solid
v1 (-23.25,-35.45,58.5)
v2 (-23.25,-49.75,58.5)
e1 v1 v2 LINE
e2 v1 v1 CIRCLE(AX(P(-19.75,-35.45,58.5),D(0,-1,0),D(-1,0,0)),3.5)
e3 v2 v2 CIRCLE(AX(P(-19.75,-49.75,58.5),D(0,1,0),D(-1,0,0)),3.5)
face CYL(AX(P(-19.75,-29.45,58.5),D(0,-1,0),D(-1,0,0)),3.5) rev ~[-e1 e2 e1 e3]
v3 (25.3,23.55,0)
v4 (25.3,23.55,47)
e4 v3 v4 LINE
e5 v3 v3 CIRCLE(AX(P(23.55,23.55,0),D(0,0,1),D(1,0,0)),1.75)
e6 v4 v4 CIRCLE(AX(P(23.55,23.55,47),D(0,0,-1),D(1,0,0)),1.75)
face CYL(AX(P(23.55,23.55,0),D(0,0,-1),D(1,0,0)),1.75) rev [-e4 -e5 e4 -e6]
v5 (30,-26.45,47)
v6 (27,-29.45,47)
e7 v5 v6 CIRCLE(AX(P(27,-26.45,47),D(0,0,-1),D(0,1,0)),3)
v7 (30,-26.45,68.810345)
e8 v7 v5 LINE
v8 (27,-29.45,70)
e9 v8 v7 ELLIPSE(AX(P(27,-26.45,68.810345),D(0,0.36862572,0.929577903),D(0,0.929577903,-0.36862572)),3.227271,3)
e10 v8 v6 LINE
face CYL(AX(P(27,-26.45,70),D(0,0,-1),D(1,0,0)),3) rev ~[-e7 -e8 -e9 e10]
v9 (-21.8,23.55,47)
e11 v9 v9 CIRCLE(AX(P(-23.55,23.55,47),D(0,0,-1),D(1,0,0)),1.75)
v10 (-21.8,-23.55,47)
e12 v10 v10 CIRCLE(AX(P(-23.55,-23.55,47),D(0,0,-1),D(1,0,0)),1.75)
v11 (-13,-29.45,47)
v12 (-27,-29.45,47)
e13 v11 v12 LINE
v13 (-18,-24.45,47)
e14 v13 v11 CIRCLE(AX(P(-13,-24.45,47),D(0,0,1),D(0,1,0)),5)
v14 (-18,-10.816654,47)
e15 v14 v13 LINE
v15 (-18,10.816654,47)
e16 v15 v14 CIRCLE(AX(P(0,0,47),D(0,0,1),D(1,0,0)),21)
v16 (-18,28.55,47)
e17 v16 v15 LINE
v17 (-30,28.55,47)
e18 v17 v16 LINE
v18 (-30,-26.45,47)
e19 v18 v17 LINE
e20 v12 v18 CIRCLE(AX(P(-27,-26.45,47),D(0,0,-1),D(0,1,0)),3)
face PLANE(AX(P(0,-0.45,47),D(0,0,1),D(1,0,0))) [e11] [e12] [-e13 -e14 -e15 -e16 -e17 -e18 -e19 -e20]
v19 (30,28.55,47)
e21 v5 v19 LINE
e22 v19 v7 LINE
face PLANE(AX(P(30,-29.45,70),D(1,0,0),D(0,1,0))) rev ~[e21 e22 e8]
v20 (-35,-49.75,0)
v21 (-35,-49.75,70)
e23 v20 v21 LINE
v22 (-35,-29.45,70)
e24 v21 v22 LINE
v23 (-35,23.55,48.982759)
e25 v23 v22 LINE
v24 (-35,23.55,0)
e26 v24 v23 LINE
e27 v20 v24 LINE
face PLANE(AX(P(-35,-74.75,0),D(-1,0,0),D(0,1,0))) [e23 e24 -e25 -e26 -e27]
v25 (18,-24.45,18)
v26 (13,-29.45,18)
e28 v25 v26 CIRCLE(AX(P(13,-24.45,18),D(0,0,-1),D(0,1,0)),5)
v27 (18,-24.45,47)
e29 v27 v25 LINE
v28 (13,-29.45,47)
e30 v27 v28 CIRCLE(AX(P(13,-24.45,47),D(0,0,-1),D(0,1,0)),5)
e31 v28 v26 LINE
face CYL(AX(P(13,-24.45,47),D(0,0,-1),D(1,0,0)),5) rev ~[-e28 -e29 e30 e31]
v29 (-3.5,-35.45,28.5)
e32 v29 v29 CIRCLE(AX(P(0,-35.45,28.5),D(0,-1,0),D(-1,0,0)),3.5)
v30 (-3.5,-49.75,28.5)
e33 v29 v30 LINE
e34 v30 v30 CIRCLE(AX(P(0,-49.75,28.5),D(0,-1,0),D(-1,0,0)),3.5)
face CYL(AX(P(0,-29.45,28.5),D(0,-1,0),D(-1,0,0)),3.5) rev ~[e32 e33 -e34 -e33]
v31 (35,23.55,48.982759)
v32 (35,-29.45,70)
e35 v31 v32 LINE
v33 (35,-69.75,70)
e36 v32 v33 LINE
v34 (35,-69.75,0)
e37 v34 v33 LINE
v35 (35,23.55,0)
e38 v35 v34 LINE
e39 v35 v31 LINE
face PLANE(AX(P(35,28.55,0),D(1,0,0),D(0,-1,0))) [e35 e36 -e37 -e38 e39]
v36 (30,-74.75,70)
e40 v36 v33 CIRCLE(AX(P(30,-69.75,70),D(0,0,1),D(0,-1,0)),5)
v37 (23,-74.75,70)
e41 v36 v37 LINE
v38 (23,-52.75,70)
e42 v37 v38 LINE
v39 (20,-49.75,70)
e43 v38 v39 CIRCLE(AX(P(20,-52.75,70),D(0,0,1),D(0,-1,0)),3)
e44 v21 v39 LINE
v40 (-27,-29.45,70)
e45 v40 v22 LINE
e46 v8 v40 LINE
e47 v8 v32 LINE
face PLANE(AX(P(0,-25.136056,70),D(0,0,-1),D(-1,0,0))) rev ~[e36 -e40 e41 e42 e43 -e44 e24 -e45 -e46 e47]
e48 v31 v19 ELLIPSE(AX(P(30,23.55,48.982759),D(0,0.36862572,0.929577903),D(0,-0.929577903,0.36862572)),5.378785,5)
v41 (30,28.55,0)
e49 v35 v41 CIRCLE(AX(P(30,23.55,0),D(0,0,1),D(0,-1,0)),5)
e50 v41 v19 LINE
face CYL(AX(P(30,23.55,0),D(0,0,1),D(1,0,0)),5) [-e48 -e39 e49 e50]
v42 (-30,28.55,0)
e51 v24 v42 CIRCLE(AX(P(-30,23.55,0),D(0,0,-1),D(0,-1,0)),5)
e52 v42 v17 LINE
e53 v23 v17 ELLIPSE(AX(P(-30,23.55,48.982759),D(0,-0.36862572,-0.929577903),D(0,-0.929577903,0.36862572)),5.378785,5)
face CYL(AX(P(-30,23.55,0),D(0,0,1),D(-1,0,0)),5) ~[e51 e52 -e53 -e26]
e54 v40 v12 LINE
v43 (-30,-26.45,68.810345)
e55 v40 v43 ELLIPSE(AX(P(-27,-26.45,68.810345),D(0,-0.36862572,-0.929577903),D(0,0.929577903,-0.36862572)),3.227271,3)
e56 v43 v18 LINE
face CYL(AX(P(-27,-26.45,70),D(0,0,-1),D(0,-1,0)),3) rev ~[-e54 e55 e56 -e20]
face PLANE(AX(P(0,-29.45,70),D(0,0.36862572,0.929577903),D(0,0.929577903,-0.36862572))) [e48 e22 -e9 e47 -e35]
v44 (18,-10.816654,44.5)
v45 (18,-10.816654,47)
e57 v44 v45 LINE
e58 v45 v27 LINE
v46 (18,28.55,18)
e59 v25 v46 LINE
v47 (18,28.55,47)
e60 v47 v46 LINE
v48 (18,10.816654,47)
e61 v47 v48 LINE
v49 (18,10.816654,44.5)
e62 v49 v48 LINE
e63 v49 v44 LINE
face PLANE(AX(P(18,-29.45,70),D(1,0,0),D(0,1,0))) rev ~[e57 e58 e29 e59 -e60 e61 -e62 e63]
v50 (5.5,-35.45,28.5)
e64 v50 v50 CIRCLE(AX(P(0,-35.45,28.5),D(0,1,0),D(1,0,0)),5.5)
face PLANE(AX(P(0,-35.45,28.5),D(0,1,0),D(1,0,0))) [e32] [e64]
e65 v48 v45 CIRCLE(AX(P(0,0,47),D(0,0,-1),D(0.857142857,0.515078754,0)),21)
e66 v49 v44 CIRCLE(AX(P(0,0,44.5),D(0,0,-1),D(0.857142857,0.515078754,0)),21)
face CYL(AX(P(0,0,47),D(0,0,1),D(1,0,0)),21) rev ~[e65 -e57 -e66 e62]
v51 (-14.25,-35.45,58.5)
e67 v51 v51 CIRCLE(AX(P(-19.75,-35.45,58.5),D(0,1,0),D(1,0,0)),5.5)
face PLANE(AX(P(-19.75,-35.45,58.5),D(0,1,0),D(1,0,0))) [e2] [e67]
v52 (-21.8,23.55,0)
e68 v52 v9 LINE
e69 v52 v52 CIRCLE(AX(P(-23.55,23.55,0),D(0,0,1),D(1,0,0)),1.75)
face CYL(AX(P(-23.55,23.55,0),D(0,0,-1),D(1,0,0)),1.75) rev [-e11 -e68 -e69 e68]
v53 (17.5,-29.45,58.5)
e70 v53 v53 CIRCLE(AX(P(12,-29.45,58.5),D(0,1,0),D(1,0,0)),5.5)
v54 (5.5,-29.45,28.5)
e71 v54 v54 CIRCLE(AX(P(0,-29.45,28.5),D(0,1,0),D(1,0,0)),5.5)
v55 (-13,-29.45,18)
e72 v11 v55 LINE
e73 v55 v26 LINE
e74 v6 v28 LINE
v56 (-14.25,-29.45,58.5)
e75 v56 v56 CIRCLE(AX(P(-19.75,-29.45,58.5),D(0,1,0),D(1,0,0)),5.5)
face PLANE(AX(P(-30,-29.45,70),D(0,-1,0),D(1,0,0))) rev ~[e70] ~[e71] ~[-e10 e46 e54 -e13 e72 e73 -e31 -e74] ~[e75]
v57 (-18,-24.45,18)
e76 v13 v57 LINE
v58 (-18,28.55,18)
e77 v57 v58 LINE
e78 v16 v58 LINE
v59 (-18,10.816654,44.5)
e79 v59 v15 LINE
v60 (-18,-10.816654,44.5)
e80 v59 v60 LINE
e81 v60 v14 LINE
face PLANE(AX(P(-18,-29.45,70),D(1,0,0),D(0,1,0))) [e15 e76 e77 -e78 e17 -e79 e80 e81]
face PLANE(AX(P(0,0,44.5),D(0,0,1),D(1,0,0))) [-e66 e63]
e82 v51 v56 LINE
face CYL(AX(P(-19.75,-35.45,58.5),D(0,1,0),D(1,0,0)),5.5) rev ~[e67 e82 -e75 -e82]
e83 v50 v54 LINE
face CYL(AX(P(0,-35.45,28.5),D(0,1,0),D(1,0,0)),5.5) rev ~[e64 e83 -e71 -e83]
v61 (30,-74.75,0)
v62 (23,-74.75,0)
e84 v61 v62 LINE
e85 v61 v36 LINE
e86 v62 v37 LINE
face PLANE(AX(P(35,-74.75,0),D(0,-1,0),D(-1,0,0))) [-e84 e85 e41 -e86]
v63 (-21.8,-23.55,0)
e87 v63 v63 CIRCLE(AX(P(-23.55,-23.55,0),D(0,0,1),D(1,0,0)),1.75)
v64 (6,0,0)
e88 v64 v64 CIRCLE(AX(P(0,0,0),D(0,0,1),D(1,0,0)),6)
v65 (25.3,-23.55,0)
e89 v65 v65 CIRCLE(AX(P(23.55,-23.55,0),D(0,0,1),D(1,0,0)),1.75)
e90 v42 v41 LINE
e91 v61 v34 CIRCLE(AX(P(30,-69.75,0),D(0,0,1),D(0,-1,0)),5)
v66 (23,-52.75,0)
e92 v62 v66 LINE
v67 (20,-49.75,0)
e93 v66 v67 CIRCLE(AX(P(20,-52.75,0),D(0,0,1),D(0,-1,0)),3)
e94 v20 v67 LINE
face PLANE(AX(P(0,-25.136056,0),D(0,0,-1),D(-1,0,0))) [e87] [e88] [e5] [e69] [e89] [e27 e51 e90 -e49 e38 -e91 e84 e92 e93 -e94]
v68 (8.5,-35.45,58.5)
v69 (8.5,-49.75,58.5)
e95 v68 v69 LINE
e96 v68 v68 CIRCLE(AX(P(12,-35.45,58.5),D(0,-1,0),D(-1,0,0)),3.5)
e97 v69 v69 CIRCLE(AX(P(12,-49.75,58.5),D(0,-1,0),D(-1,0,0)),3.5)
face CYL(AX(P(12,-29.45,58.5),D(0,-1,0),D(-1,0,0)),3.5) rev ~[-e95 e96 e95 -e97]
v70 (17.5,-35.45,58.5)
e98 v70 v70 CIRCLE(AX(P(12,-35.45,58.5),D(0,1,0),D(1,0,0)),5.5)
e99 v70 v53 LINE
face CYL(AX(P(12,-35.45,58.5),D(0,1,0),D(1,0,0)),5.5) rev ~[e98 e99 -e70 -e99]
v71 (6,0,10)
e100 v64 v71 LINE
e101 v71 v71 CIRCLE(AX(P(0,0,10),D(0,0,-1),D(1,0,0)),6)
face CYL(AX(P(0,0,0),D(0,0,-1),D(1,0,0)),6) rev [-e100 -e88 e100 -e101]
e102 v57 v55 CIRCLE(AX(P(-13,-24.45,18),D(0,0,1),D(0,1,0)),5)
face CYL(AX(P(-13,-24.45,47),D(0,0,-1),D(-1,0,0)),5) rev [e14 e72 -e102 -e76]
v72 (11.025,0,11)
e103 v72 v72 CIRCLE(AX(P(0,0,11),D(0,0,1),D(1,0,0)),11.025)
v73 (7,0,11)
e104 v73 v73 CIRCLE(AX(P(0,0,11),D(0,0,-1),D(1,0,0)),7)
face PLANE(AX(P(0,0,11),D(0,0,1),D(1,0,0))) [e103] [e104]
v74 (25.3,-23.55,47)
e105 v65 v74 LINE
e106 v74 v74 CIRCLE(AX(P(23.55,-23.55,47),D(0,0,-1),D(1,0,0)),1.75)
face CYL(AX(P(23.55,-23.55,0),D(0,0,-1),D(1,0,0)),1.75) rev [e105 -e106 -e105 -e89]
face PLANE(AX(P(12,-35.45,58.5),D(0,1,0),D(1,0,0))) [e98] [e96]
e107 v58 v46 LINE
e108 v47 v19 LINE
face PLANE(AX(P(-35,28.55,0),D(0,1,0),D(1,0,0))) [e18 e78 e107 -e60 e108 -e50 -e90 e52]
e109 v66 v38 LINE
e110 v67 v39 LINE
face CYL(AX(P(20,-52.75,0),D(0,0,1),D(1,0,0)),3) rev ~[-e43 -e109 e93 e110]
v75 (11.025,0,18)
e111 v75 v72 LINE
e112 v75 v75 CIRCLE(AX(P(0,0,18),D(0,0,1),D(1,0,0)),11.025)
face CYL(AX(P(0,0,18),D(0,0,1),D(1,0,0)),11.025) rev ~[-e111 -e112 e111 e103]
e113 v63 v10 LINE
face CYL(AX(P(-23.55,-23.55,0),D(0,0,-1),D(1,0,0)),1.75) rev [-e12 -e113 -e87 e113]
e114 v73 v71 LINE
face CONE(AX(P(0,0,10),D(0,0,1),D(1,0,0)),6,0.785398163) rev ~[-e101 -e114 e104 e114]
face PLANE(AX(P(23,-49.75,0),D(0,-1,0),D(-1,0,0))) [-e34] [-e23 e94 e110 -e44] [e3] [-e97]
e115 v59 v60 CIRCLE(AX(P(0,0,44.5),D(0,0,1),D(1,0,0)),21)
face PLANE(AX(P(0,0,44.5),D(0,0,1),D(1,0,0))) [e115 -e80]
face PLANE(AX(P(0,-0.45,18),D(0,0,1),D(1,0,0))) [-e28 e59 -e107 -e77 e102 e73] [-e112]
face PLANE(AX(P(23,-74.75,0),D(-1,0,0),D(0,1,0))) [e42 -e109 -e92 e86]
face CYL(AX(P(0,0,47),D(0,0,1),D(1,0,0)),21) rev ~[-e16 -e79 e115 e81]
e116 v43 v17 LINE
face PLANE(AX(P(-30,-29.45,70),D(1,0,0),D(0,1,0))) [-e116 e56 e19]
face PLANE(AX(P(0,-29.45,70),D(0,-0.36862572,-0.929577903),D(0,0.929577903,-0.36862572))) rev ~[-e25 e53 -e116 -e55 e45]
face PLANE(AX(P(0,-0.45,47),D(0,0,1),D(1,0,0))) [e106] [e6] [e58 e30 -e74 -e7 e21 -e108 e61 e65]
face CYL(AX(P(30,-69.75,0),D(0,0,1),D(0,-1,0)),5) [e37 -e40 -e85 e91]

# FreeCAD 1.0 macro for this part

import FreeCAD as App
import Part
import Sketcher


def edges_at(feature, points):
    """Names of the edges that pass closest to the given points."""
    edges = feature.Shape.Edges
    near = lambda p: min(range(len(edges)), key=lambda i: edges[i].distToShape(Part.Vertex(*p))[0])
    return sorted({f"Edge{near(p) + 1}" for p in points})

doc = App.newDocument("Part")
body = doc.addObject("PartDesign::Body", "Body")

sketch1 = body.newObject("Sketcher::SketchObject", "Sketch")
sketch1.AttachmentSupport = (doc.getObject("XY_Plane"), [""])
sketch1.MapMode = "FlatFace"
sketch1.addGeometry(Part.LineSegment(App.Vector(-35, 28.55, 0), App.Vector(-35, -74.75, 0)), False)
sketch1.addGeometry(Part.LineSegment(App.Vector(-35, -74.75, 0), App.Vector(-23, -74.75, 0)), False)
sketch1.addGeometry(Part.LineSegment(App.Vector(-23, -74.75, 0), App.Vector(-23, -49.75, 0)), False)
sketch1.addGeometry(Part.LineSegment(App.Vector(-23, -49.75, 0), App.Vector(23, -49.75, 0)), False)
sketch1.addGeometry(Part.LineSegment(App.Vector(23, -49.75, 0), App.Vector(23, -74.75, 0)), False)
sketch1.addGeometry(Part.LineSegment(App.Vector(23, -74.75, 0), App.Vector(35, -74.75, 0)), False)
sketch1.addGeometry(Part.LineSegment(App.Vector(35, -74.75, 0), App.Vector(35, 28.55, 0)), False)
sketch1.addGeometry(Part.LineSegment(App.Vector(35, 28.55, 0), App.Vector(-35, 28.55, 0)), False)
sketch1.addGeometry(Part.Circle(App.Vector(23.55, -23.55, 0), App.Vector(0, 0, 1), 1.75), False)
sketch1.addGeometry(Part.Circle(App.Vector(-23.55, -23.55, 0), App.Vector(0, 0, 1), 1.75), False)
sketch1.addGeometry(Part.Circle(App.Vector(23.55, 23.55, 0), App.Vector(0, 0, 1), 1.75), False)
sketch1.addGeometry(Part.Circle(App.Vector(0, 0, 0), App.Vector(0, 0, 1), 6), False)
sketch1.addGeometry(Part.Circle(App.Vector(-23.55, 23.55, 0), App.Vector(0, 0, 1), 1.75), False)
sketch1.addConstraint(Sketcher.Constraint("Coincident", 0, 2, 1, 1))
sketch1.addConstraint(Sketcher.Constraint("Coincident", 1, 2, 2, 1))
sketch1.addConstraint(Sketcher.Constraint("Coincident", 2, 2, 3, 1))
sketch1.addConstraint(Sketcher.Constraint("Coincident", 3, 2, 4, 1))
sketch1.addConstraint(Sketcher.Constraint("Coincident", 4, 2, 5, 1))
sketch1.addConstraint(Sketcher.Constraint("Coincident", 5, 2, 6, 1))
sketch1.addConstraint(Sketcher.Constraint("Coincident", 6, 2, 7, 1))
sketch1.addConstraint(Sketcher.Constraint("Coincident", 7, 2, 0, 1))
sketch1.addConstraint(Sketcher.Constraint("Vertical", 0))
sketch1.addConstraint(Sketcher.Constraint("Horizontal", 1))
sketch1.addConstraint(Sketcher.Constraint("Vertical", 2))
sketch1.addConstraint(Sketcher.Constraint("Horizontal", 3))
sketch1.addConstraint(Sketcher.Constraint("Vertical", 4))
sketch1.addConstraint(Sketcher.Constraint("Horizontal", 5))
sketch1.addConstraint(Sketcher.Constraint("Vertical", 6))
sketch1.addConstraint(Sketcher.Constraint("Horizontal", 7))
sketch1.addConstraint(Sketcher.Constraint("Coincident", 11, 3, -1, 1))
sketch1.addConstraint(Sketcher.Constraint("Equal", 8, 9))
sketch1.addConstraint(Sketcher.Constraint("Equal", 9, 10))
sketch1.addConstraint(Sketcher.Constraint("Equal", 10, 12))
sketch1.addConstraint(Sketcher.Constraint("Symmetric", 9, 3, 10, 3, -1, 1))
sketch1.addConstraint(Sketcher.Constraint("Symmetric", 8, 3, 12, 3, -1, 1))
sketch1.addConstraint(Sketcher.Constraint("Symmetric", 8, 3, 9, 3, -2))
sketch1.addConstraint(Sketcher.Constraint("Symmetric", 1, 2, 4, 2, -2))
sketch1.addConstraint(Sketcher.Constraint("Equal", 1, 5))
sketch1.addConstraint(Sketcher.Constraint("Diameter", 11, 12.0))
sketch1.addConstraint(Sketcher.Constraint("Diameter", 8, 3.5))
sketch1.addConstraint(Sketcher.Constraint("DistanceX", 1, 1, 1, 2, 12.0))
sketch1.addConstraint(Sketcher.Constraint("DistanceX", 3, 1, 3, 2, 46.0))
sketch1.addConstraint(Sketcher.Constraint("DistanceY", 2, 1, 2, 2, 25.0))
sketch1.addConstraint(Sketcher.Constraint("DistanceY", 0, 2, 0, 1, 103.3))
sketch1.addConstraint(Sketcher.Constraint("DistanceY", 10, 3, 6, 2, 5.0))
sketch1.addConstraint(Sketcher.Constraint("DistanceX", 9, 3, 8, 3, 47.1))
sketch1.addConstraint(Sketcher.Constraint("DistanceY", 8, 3, 10, 3, 47.1))
pad1 = body.newObject("PartDesign::Pad", "Pad")
pad1.Profile = sketch1
pad1.Length = 70

sketch2 = body.newObject("Sketcher::SketchObject", "Sketch001")
sketch2.AttachmentSupport = (doc.getObject("XY_Plane"), [""])
sketch2.MapMode = "FlatFace"
sketch2.AttachmentOffset = App.Placement(App.Vector(0, 0, 70), App.Rotation())
sketch2.addGeometry(Part.LineSegment(App.Vector(-18, 28.55, 0), App.Vector(-18, -29.45, 0)), False)
sketch2.addGeometry(Part.LineSegment(App.Vector(-18, -29.45, 0), App.Vector(18, -29.45, 0)), False)
sketch2.addGeometry(Part.LineSegment(App.Vector(18, -29.45, 0), App.Vector(18, 28.55, 0)), False)
sketch2.addGeometry(Part.LineSegment(App.Vector(18, 28.55, 0), App.Vector(-18, 28.55, 0)), False)
sketch2.addConstraint(Sketcher.Constraint("Coincident", 0, 2, 1, 1))
sketch2.addConstraint(Sketcher.Constraint("Coincident", 1, 2, 2, 1))
sketch2.addConstraint(Sketcher.Constraint("Coincident", 2, 2, 3, 1))
sketch2.addConstraint(Sketcher.Constraint("Coincident", 3, 2, 0, 1))
sketch2.addConstraint(Sketcher.Constraint("Vertical", 0))
sketch2.addConstraint(Sketcher.Constraint("Horizontal", 1))
sketch2.addConstraint(Sketcher.Constraint("Vertical", 2))
sketch2.addConstraint(Sketcher.Constraint("Horizontal", 3))
sketch2.addConstraint(Sketcher.Constraint("DistanceX", 1, 1, 1, 2, 36.0))
sketch2.addConstraint(Sketcher.Constraint("DistanceY", 0, 2, 0, 1, 58.0))
sketch2.addConstraint(Sketcher.Constraint("DistanceX", 0, 2, -1, 1, 18.0))
sketch2.addConstraint(Sketcher.Constraint("DistanceY", 0, 2, -1, 1, 29.45))
pocket1 = body.newObject("PartDesign::Pocket", "Pocket")
pocket1.Profile = sketch2
pocket1.Length = 52

sketch3 = body.newObject("Sketcher::SketchObject", "Sketch002")
sketch3.AttachmentSupport = (doc.getObject("XY_Plane"), [""])
sketch3.MapMode = "FlatFace"
sketch3.AttachmentOffset = App.Placement(App.Vector(0, 0, 70), App.Rotation())
sketch3.addGeometry(Part.LineSegment(App.Vector(-30, 28.55, 0), App.Vector(-30, -29.45, 0)), False)
sketch3.addGeometry(Part.LineSegment(App.Vector(-30, -29.45, 0), App.Vector(30, -29.45, 0)), False)
sketch3.addGeometry(Part.LineSegment(App.Vector(30, -29.45, 0), App.Vector(30, 28.55, 0)), False)
sketch3.addGeometry(Part.LineSegment(App.Vector(30, 28.55, 0), App.Vector(-30, 28.55, 0)), False)
sketch3.addConstraint(Sketcher.Constraint("Coincident", 0, 2, 1, 1))
sketch3.addConstraint(Sketcher.Constraint("Coincident", 1, 2, 2, 1))
sketch3.addConstraint(Sketcher.Constraint("Coincident", 2, 2, 3, 1))
sketch3.addConstraint(Sketcher.Constraint("Coincident", 3, 2, 0, 1))
sketch3.addConstraint(Sketcher.Constraint("Vertical", 0))
sketch3.addConstraint(Sketcher.Constraint("Horizontal", 1))
sketch3.addConstraint(Sketcher.Constraint("Vertical", 2))
sketch3.addConstraint(Sketcher.Constraint("Horizontal", 3))
sketch3.addConstraint(Sketcher.Constraint("DistanceX", 1, 1, 1, 2, 60.0))
sketch3.addConstraint(Sketcher.Constraint("DistanceY", 0, 2, 0, 1, 58.0))
sketch3.addConstraint(Sketcher.Constraint("DistanceX", 0, 2, -1, 1, 30.0))
sketch3.addConstraint(Sketcher.Constraint("DistanceY", 0, 2, -1, 1, 29.45))
pocket2 = body.newObject("PartDesign::Pocket", "Pocket001")
pocket2.Profile = sketch3
pocket2.Length = 23

sketch4 = body.newObject("Sketcher::SketchObject", "Sketch003")
sketch4.AttachmentSupport = (doc.getObject("XY_Plane"), [""])
sketch4.MapMode = "FlatFace"
sketch4.AttachmentOffset = App.Placement(App.Vector(0, 0, 47), App.Rotation())
sketch4.addGeometry(Part.Circle(App.Vector(0, 0, 0), App.Vector(0, 0, 1), 21), False)
sketch4.addConstraint(Sketcher.Constraint("Coincident", 0, 3, -1, 1))
sketch4.addConstraint(Sketcher.Constraint("Diameter", 0, 42.0))
pocket3 = body.newObject("PartDesign::Pocket", "Pocket002")
pocket3.Profile = sketch4
pocket3.Length = 2.5
doc.recompute()

fillet = body.newObject("PartDesign::Fillet", "Fillet")
fillet.Base = (pocket3, edges_at(pocket3, [
    (35, -74.75, 35),
    (-35, -74.75, 35),
    (35, 28.55, 35),
    (-35, 28.55, 35),
    (18, -29.45, 32.5),
    (-18, -29.45, 32.5),
]))
fillet.Radius = 5
doc.recompute()

fillet2 = body.newObject("PartDesign::Fillet", "Fillet001")
fillet2.Base = (fillet, edges_at(fillet, [
    (23, -49.75, 35),
    (-23, -49.75, 35),
    (30, -29.45, 58.5),
    (-30, -29.45, 58.5),
]))
fillet2.Radius = 3

sketch5 = body.newObject("Sketcher::SketchObject", "Sketch004")
sketch5.AttachmentSupport = (doc.getObject("XY_Plane"), [""])
sketch5.MapMode = "FlatFace"
sketch5.AttachmentOffset = App.Placement(App.Vector(0, 0, 18), App.Rotation())
sketch5.addGeometry(Part.Circle(App.Vector(0, 0, 0), App.Vector(0, 0, 1), 11.025), False)
sketch5.addConstraint(Sketcher.Constraint("Coincident", 0, 3, -1, 1))
sketch5.addConstraint(Sketcher.Constraint("Diameter", 0, 22.05))
pocket4 = body.newObject("PartDesign::Pocket", "Pocket003")
pocket4.Profile = sketch5
pocket4.Length = 7

sketch6 = body.newObject("Sketcher::SketchObject", "Sketch005")
sketch6.AttachmentSupport = (doc.getObject("XZ_Plane"), [""])
sketch6.MapMode = "FlatFace"
sketch6.AttachmentOffset = App.Placement(App.Vector(0, 0, 29.45), App.Rotation())
sketch6.addGeometry(Part.Circle(App.Vector(0, 28.5, 0), App.Vector(0, 0, 1), 3.5), False)
sketch6.addGeometry(Part.Circle(App.Vector(-19.75, 58.5, 0), App.Vector(0, 0, 1), 3.5), False)
sketch6.addGeometry(Part.Circle(App.Vector(12, 58.5, 0), App.Vector(0, 0, 1), 3.5), False)
sketch6.addConstraint(Sketcher.Constraint("Equal", 0, 1))
sketch6.addConstraint(Sketcher.Constraint("Equal", 1, 2))
sketch6.addConstraint(Sketcher.Constraint("PointOnObject", 0, 3, -2))
sketch6.addConstraint(Sketcher.Constraint("Horizontal", 1, 3, 2, 3))
sketch6.addConstraint(Sketcher.Constraint("Diameter", 0, 7.0))
sketch6.addConstraint(Sketcher.Constraint("DistanceX", -1, 1, 2, 3, 12.0))
sketch6.addConstraint(Sketcher.Constraint("DistanceY", 0, 3, 1, 3, 30.0))
sketch6.addConstraint(Sketcher.Constraint("DistanceY", -1, 1, 0, 3, 28.5))
sketch6.addConstraint(Sketcher.Constraint("DistanceX", 1, 3, -1, 1, 19.75))
doc.recompute()
hole = body.newObject("PartDesign::Hole", "Hole")
hole.Profile = sketch6
hole.ThreadType = "None"
hole.Diameter = 7
hole.DepthType = "ThroughAll"
hole.HoleCutType = "Counterbore"
hole.HoleCutDiameter = 11
hole.HoleCutDepth = 6
hole.Reversed = True

sketch7 = body.newObject("Sketcher::SketchObject", "Sketch006")
sketch7.AttachmentSupport = (doc.getObject("XY_Plane"), [""])
sketch7.MapMode = "FlatFace"
sketch7.AttachmentOffset = App.Placement(App.Vector(0, 0, 70), App.Rotation())
sketch7.addGeometry(Part.LineSegment(App.Vector(-63.789923, -49.75, 0), App.Vector(-63.789923, -81.196844, 0)), False)
sketch7.addGeometry(Part.LineSegment(App.Vector(-63.789923, -81.196844, 0), App.Vector(-4.115479, -81.196844, 0)), False)
sketch7.addGeometry(Part.LineSegment(App.Vector(-4.115479, -81.196844, 0), App.Vector(-4.115479, -49.75, 0)), False)
sketch7.addGeometry(Part.LineSegment(App.Vector(-4.115479, -49.75, 0), App.Vector(-63.789923, -49.75, 0)), False)
sketch7.addConstraint(Sketcher.Constraint("Coincident", 0, 2, 1, 1))
sketch7.addConstraint(Sketcher.Constraint("Coincident", 1, 2, 2, 1))
sketch7.addConstraint(Sketcher.Constraint("Coincident", 2, 2, 3, 1))
sketch7.addConstraint(Sketcher.Constraint("Coincident", 3, 2, 0, 1))
sketch7.addConstraint(Sketcher.Constraint("Vertical", 0))
sketch7.addConstraint(Sketcher.Constraint("Horizontal", 1))
sketch7.addConstraint(Sketcher.Constraint("Vertical", 2))
sketch7.addConstraint(Sketcher.Constraint("Horizontal", 3))
sketch7.addConstraint(Sketcher.Constraint("DistanceY", 2, 2, -1, 1, 49.75))
sketch7.addConstraint(Sketcher.Constraint("DistanceX", 1, 1, 1, 2, 59.674444))
sketch7.addConstraint(Sketcher.Constraint("DistanceY", 0, 2, 0, 1, 31.446844))
sketch7.addConstraint(Sketcher.Constraint("DistanceX", 1, 2, -1, 1, 4.115479))
pocket5 = body.newObject("PartDesign::Pocket", "Pocket004")
pocket5.Profile = sketch7
pocket5.Type = "ThroughAll"

sketch8 = body.newObject("Sketcher::SketchObject", "Sketch007")
sketch8.AttachmentSupport = (doc.getObject("YZ_Plane"), [""])
sketch8.MapMode = "FlatFace"
sketch8.addGeometry(Part.LineSegment(App.Vector(28.55, 47, 0), App.Vector(28.55, 70, 0)), False)
sketch8.addGeometry(Part.LineSegment(App.Vector(28.55, 70, 0), App.Vector(-29.45, 70, 0)), False)
sketch8.addGeometry(Part.LineSegment(App.Vector(-29.45, 70, 0), App.Vector(28.55, 47, 0)), False)
sketch8.addConstraint(Sketcher.Constraint("Coincident", 0, 2, 1, 1))
sketch8.addConstraint(Sketcher.Constraint("Coincident", 1, 2, 2, 1))
sketch8.addConstraint(Sketcher.Constraint("Coincident", 2, 2, 0, 1))
sketch8.addConstraint(Sketcher.Constraint("Vertical", 0))
sketch8.addConstraint(Sketcher.Constraint("Horizontal", 1))
sketch8.addConstraint(Sketcher.Constraint("DistanceX", 1, 2, 1, 1, 58.0))
sketch8.addConstraint(Sketcher.Constraint("DistanceY", 0, 1, 0, 2, 23.0))
sketch8.addConstraint(Sketcher.Constraint("DistanceY", -1, 1, 0, 2, 70.0))
sketch8.addConstraint(Sketcher.Constraint("DistanceX", -1, 1, 0, 2, 28.55))
pocket6 = body.newObject("PartDesign::Pocket", "Pocket005")
pocket6.Profile = sketch8
pocket6.Type = "ThroughAll"
pocket6.Midplane = True
doc.recompute()

chamfer = body.newObject("PartDesign::Chamfer", "Chamfer")
chamfer.Base = (pocket6, edges_at(pocket6, [(-6, 0, 11)]))
chamfer.Size = 1

doc.recompute()
